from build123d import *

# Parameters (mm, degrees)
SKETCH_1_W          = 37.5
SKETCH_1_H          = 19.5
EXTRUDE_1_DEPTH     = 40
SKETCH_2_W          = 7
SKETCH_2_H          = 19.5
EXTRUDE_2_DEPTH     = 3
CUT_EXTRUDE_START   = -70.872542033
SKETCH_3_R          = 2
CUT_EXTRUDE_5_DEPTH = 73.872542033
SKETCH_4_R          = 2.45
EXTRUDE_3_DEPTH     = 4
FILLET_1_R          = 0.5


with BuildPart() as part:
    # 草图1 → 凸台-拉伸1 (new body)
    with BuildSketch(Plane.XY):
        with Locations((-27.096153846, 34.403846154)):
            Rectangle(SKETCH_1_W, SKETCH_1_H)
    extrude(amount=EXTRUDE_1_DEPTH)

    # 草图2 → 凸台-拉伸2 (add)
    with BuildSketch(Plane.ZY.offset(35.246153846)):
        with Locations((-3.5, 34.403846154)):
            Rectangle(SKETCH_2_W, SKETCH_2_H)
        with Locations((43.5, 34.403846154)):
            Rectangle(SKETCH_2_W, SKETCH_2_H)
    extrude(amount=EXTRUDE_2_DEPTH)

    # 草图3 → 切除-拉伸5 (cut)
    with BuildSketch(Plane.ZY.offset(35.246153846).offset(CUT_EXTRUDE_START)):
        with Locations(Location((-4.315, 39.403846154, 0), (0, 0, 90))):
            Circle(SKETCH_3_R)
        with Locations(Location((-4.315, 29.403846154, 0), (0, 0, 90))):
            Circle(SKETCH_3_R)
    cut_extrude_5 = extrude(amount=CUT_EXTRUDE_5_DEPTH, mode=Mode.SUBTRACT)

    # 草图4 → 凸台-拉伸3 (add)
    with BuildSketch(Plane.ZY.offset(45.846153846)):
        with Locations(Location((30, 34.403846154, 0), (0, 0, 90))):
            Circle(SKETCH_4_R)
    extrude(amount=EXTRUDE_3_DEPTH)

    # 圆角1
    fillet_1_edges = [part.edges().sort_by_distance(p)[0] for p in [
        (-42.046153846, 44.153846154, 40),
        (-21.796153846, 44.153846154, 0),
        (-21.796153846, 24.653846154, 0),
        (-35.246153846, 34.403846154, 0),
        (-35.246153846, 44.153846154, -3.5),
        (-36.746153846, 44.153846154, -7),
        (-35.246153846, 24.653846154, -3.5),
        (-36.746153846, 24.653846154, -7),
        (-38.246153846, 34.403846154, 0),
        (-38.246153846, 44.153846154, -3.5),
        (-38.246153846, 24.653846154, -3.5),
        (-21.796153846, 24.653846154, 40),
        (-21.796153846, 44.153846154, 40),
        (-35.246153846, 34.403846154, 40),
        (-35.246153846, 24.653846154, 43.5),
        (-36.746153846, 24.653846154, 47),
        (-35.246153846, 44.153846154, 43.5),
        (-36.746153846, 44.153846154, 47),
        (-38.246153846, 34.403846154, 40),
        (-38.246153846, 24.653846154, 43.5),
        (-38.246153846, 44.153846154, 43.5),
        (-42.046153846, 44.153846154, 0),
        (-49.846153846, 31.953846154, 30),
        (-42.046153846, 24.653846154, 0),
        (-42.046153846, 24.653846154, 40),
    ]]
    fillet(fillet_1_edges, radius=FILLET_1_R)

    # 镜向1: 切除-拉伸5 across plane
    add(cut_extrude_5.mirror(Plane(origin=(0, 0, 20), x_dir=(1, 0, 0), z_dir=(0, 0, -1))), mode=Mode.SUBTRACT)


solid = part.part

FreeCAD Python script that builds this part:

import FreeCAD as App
import Part
import Sketcher
from FreeCAD import Vector


def edges_at(feature, points):
    """Names of the edges that pass closest to the given points."""
    edges = feature.Shape.Edges
    near = lambda p: min(range(len(edges)), key=lambda i: edges[i].distToShape(Part.Vertex(*p))[0])
    return sorted({f"Edge{near(p) + 1}" for p in points})


def add_polygon(sketch, points):
    """Adds a closed chain of lines whose ends are joined by coincident constraints."""
    first, n = sketch.GeometryCount, len(points)
    for a, b in zip(points, points[1:] + points[:1]):
        sketch.addGeometry(Part.LineSegment(App.Vector(*a, 0), App.Vector(*b, 0)), False)
    for i in range(n):
        sketch.addConstraint(Sketcher.Constraint("Coincident", first + i, 2, first + (i + 1) % n, 1))

doc = App.newDocument("Part")
body = doc.addObject("PartDesign::Body", "Body")

sketch1 = body.newObject("Sketcher::SketchObject", "Sketch")
sketch1.AttachmentSupport = (doc.getObject("XY_Plane"), [""])
sketch1.MapMode = "FlatFace"
add_polygon(sketch1, [(-45.846154, 44.153846), (-45.846154, 24.653846), (-8.346154, 24.653846), (-8.346154, 44.153846)])
sketch1.addConstraint([
    Sketcher.Constraint("Vertical", 0),
    Sketcher.Constraint("Horizontal", 1),
    Sketcher.Constraint("Vertical", 2),
    Sketcher.Constraint("Horizontal", 3),
    Sketcher.Constraint("DistanceX", 1, 1, 1, 2, 37.5),
    Sketcher.Constraint("DistanceY", 0, 2, 0, 1, 19.5),
    Sketcher.Constraint("DistanceX", 0, 2, -1, 1, 45.846154),
    Sketcher.Constraint("DistanceY", -1, 1, 0, 2, 24.653846),
])
pad1 = body.newObject("PartDesign::Pad", "Pad")
pad1.Profile = sketch1
pad1.Length = 40

sketch2 = body.newObject("Sketcher::SketchObject", "Sketch001")
sketch2.AttachmentSupport = (doc.getObject("YZ_Plane"), [""])
sketch2.MapMode = "FlatFace"
sketch2.AttachmentOffset = App.Placement(Vector(0, 0, -35.246154), App.Rotation())
add_polygon(sketch2, [(44.153846, -7), (24.653846, -7), (24.653846, 0), (44.153846, 0)])
add_polygon(sketch2, [(44.153846, 40), (24.653846, 40), (24.653846, 47), (44.153846, 47)])
sketch2.addConstraint([
    Sketcher.Constraint("Horizontal", 0),
    Sketcher.Constraint("Vertical", 1),
    Sketcher.Constraint("Horizontal", 2),
    Sketcher.Constraint("Vertical", 3),
    Sketcher.Constraint("Horizontal", 4),
    Sketcher.Constraint("Vertical", 5),
    Sketcher.Constraint("Horizontal", 6),
    Sketcher.Constraint("Vertical", 7),
    Sketcher.Constraint("PointOnObject", 1, 2, -1),
    Sketcher.Constraint("Vertical", 1, 2, 4, 2),
    Sketcher.Constraint("Vertical", 3, 2, 6, 2),
    Sketcher.Constraint("Equal", 3, 5),
    Sketcher.Constraint("DistanceY", 1, 1, 1, 2, 7.0),
    Sketcher.Constraint("DistanceX", 0, 2, 0, 1, 19.5),
    Sketcher.Constraint("DistanceY", -1, 1, 4, 2, 40.0),
    Sketcher.Constraint("DistanceX", -1, 1, 0, 2, 24.653846),
])
pad2 = body.newObject("PartDesign::Pad", "Pad001")
pad2.Profile = sketch2
pad2.Length = 3
pad2.Reversed = True

sketch3 = body.newObject("Sketcher::SketchObject", "Sketch002")
sketch3.AttachmentSupport = (doc.getObject("YZ_Plane"), [""])
sketch3.MapMode = "FlatFace"
sketch3.AttachmentOffset = App.Placement(Vector(0, 0, 35.626388), App.Rotation())
sketch3.addGeometry([
    Part.Circle(Vector(39.403846, -4.315, 0), Vector(0, 0, 1), 2),
    Part.Circle(Vector(29.403846, -4.315, 0), Vector(0, 0, 1), 2),
], False)
sketch3.addConstraint([
    Sketcher.Constraint("Equal", 0, 1),
    Sketcher.Constraint("Horizontal", 0, 3, 1, 3),
    Sketcher.Constraint("Diameter", 0, 4.0),
    Sketcher.Constraint("DistanceX", 1, 3, 0, 3, 10.0),
    Sketcher.Constraint("DistanceY", 0, 3, -1, 1, 4.315),
    Sketcher.Constraint("DistanceX", -1, 1, 0, 3, 39.403846),
])
pocket1 = body.newObject("PartDesign::Pocket", "Pocket")
pocket1.Profile = sketch3
pocket1.Length = 73.872542

sketch4 = body.newObject("Sketcher::SketchObject", "Sketch003")
sketch4.AttachmentSupport = (doc.getObject("YZ_Plane"), [""])
sketch4.MapMode = "FlatFace"
sketch4.AttachmentOffset = App.Placement(Vector(0, 0, -45.846154), App.Rotation())
sketch4.addGeometry(Part.Circle(Vector(34.403846, 30, 0), Vector(0, 0, 1), 2.45), False)
sketch4.addConstraint([
    Sketcher.Constraint("Diameter", 0, 4.9),
    Sketcher.Constraint("DistanceY", -1, 1, 0, 3, 30.0),
    Sketcher.Constraint("DistanceX", -1, 1, 0, 3, 34.403846),
])
pad3 = body.newObject("PartDesign::Pad", "Pad002")
pad3.Profile = sketch4
pad3.Length = 4
pad3.Reversed = True
doc.recompute()

fillet = body.newObject("PartDesign::Fillet", "Fillet")
fillet.Base = (pad3, edges_at(pad3, [
    (-42.046, 44.154, 40),
    (-21.796, 44.154, 0),
    (-21.796, 24.654, 0),
    (-35.246, 34.404, 0),
    (-35.246, 44.154, -3.5),
    (-36.746, 44.154, -7),
    (-35.246, 24.654, -3.5),
    (-36.746, 24.654, -7),
    (-38.246, 34.404, 0),
    (-38.246, 44.154, -3.5),
    (-38.246, 24.654, -3.5),
    (-21.796, 24.654, 40),
    (-21.796, 44.154, 40),
    (-35.246, 34.404, 40),
    (-35.246, 24.654, 43.5),
    (-36.746, 24.654, 47),
    (-35.246, 44.154, 43.5),
    (-36.746, 44.154, 47),
    (-38.246, 34.404, 40),
    (-38.246, 24.654, 43.5),
    (-38.246, 44.154, 43.5),
    (-42.046, 44.154, 0),
    (-49.846, 31.954, 30),
    (-42.046, 24.654, 0),
    (-42.046, 24.654, 40),
]))
fillet.Radius = 0.5
doc.recompute()

datumplane = body.newObject("PartDesign::Plane", "DatumPlane")
datumplane.AttachmentSupport = (doc.getObject("XY_Plane"), [""])
datumplane.MapMode = "FlatFace"
datumplane.AttachmentOffset = App.Placement(Vector(0, 0, 20), App.Rotation())
mirrored = body.newObject("PartDesign::Mirrored", "Mirrored")
mirrored.Originals = [pocket1]
mirrored.MirrorPlane = (datumplane, [""])
body.Tip = mirrored

doc.recompute()
